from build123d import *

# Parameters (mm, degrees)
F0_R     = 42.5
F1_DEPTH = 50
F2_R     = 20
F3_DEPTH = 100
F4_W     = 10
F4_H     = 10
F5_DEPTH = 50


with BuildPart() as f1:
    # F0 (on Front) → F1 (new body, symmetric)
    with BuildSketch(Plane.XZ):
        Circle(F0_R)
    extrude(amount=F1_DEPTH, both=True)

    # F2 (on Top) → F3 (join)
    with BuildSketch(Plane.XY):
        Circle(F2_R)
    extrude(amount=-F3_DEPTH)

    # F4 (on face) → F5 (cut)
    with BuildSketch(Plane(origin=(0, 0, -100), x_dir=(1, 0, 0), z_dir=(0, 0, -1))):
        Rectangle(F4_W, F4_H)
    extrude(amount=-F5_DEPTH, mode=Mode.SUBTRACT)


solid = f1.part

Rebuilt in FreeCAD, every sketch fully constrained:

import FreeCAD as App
import Part
import Sketcher

V = App.Vector

doc = App.newDocument("Part")
body = doc.addObject("PartDesign::Body", "Body")

sketch1 = doc.addObject("Sketcher::SketchObject", "Sketch")
body.addObject(sketch1)
sketch1.AttachmentSupport = (doc.XZ_Plane, [""])
sketch1.MapMode = "FlatFace"
sketch1.addGeometry(Part.Circle(V(0, 0, 0), V(0, 0, 1), 42), False)
sketch1.addConstraint([
    Sketcher.Constraint("Coincident", 0, 3, -1, 1),
    Sketcher.Constraint("Diameter", 0, 85.0),
])
pad1 = doc.addObject("PartDesign::Pad", "Pad")
body.addObject(pad1)
pad1.Profile = sketch1
pad1.Length = 100
pad1.Midplane = True

sketch2 = doc.addObject("Sketcher::SketchObject", "Sketch001")
body.addObject(sketch2)
sketch2.AttachmentSupport = (doc.XY_Plane, [""])
sketch2.MapMode = "FlatFace"
sketch2.addGeometry(Part.Circle(V(0, 0, 0), V(0, 0, 1), 20), False)
sketch2.addConstraint([
    Sketcher.Constraint("Coincident", 0, 3, -1, 1),
    Sketcher.Constraint("Diameter", 0, 40.0),
])
pad2 = doc.addObject("PartDesign::Pad", "Pad001")
body.addObject(pad2)
pad2.Profile = sketch2
pad2.Length = 100
pad2.Reversed = True

sketch3 = doc.addObject("Sketcher::SketchObject", "Sketch002")
body.addObject(sketch3)
sketch3.AttachmentSupport = (doc.XY_Plane, [""])
sketch3.MapMode = "FlatFace"
sketch3.AttachmentOffset = App.Placement(V(0, 0, -100), App.Rotation())
sketch3.addGeometry([
    Part.LineSegment(V(-5, -5, 0), V(-5, 5, 0)),
    Part.LineSegment(V(-5, 5, 0), V(5, 5, 0)),
    Part.LineSegment(V(5, 5, 0), V(5, -5, 0)),
    Part.LineSegment(V(5, -5, 0), V(-5, -5, 0)),
], False)
sketch3.addConstraint([
    Sketcher.Constraint("Coincident", 0, 2, 1, 1),
    Sketcher.Constraint("Coincident", 1, 2, 2, 1),
    Sketcher.Constraint("Coincident", 2, 2, 3, 1),
    Sketcher.Constraint("Coincident", 3, 2, 0, 1),
    Sketcher.Constraint("Vertical", 0),
    Sketcher.Constraint("Horizontal", 1),
    Sketcher.Constraint("Vertical", 2),
    Sketcher.Constraint("Horizontal", 3),
    Sketcher.Constraint("Symmetric", 0, 2, 2, 2, -1, 1),
    Sketcher.Constraint("Equal", 3, 0),
    Sketcher.Constraint("DistanceX", 1, 1, 1, 2, 10.0),
])
pocket1 = doc.addObject("PartDesign::Pocket", "Pocket")
body.addObject(pocket1)
pocket1.Profile = sketch3
pocket1.Length = 50
pocket1.Reversed = True

doc.recompute()
